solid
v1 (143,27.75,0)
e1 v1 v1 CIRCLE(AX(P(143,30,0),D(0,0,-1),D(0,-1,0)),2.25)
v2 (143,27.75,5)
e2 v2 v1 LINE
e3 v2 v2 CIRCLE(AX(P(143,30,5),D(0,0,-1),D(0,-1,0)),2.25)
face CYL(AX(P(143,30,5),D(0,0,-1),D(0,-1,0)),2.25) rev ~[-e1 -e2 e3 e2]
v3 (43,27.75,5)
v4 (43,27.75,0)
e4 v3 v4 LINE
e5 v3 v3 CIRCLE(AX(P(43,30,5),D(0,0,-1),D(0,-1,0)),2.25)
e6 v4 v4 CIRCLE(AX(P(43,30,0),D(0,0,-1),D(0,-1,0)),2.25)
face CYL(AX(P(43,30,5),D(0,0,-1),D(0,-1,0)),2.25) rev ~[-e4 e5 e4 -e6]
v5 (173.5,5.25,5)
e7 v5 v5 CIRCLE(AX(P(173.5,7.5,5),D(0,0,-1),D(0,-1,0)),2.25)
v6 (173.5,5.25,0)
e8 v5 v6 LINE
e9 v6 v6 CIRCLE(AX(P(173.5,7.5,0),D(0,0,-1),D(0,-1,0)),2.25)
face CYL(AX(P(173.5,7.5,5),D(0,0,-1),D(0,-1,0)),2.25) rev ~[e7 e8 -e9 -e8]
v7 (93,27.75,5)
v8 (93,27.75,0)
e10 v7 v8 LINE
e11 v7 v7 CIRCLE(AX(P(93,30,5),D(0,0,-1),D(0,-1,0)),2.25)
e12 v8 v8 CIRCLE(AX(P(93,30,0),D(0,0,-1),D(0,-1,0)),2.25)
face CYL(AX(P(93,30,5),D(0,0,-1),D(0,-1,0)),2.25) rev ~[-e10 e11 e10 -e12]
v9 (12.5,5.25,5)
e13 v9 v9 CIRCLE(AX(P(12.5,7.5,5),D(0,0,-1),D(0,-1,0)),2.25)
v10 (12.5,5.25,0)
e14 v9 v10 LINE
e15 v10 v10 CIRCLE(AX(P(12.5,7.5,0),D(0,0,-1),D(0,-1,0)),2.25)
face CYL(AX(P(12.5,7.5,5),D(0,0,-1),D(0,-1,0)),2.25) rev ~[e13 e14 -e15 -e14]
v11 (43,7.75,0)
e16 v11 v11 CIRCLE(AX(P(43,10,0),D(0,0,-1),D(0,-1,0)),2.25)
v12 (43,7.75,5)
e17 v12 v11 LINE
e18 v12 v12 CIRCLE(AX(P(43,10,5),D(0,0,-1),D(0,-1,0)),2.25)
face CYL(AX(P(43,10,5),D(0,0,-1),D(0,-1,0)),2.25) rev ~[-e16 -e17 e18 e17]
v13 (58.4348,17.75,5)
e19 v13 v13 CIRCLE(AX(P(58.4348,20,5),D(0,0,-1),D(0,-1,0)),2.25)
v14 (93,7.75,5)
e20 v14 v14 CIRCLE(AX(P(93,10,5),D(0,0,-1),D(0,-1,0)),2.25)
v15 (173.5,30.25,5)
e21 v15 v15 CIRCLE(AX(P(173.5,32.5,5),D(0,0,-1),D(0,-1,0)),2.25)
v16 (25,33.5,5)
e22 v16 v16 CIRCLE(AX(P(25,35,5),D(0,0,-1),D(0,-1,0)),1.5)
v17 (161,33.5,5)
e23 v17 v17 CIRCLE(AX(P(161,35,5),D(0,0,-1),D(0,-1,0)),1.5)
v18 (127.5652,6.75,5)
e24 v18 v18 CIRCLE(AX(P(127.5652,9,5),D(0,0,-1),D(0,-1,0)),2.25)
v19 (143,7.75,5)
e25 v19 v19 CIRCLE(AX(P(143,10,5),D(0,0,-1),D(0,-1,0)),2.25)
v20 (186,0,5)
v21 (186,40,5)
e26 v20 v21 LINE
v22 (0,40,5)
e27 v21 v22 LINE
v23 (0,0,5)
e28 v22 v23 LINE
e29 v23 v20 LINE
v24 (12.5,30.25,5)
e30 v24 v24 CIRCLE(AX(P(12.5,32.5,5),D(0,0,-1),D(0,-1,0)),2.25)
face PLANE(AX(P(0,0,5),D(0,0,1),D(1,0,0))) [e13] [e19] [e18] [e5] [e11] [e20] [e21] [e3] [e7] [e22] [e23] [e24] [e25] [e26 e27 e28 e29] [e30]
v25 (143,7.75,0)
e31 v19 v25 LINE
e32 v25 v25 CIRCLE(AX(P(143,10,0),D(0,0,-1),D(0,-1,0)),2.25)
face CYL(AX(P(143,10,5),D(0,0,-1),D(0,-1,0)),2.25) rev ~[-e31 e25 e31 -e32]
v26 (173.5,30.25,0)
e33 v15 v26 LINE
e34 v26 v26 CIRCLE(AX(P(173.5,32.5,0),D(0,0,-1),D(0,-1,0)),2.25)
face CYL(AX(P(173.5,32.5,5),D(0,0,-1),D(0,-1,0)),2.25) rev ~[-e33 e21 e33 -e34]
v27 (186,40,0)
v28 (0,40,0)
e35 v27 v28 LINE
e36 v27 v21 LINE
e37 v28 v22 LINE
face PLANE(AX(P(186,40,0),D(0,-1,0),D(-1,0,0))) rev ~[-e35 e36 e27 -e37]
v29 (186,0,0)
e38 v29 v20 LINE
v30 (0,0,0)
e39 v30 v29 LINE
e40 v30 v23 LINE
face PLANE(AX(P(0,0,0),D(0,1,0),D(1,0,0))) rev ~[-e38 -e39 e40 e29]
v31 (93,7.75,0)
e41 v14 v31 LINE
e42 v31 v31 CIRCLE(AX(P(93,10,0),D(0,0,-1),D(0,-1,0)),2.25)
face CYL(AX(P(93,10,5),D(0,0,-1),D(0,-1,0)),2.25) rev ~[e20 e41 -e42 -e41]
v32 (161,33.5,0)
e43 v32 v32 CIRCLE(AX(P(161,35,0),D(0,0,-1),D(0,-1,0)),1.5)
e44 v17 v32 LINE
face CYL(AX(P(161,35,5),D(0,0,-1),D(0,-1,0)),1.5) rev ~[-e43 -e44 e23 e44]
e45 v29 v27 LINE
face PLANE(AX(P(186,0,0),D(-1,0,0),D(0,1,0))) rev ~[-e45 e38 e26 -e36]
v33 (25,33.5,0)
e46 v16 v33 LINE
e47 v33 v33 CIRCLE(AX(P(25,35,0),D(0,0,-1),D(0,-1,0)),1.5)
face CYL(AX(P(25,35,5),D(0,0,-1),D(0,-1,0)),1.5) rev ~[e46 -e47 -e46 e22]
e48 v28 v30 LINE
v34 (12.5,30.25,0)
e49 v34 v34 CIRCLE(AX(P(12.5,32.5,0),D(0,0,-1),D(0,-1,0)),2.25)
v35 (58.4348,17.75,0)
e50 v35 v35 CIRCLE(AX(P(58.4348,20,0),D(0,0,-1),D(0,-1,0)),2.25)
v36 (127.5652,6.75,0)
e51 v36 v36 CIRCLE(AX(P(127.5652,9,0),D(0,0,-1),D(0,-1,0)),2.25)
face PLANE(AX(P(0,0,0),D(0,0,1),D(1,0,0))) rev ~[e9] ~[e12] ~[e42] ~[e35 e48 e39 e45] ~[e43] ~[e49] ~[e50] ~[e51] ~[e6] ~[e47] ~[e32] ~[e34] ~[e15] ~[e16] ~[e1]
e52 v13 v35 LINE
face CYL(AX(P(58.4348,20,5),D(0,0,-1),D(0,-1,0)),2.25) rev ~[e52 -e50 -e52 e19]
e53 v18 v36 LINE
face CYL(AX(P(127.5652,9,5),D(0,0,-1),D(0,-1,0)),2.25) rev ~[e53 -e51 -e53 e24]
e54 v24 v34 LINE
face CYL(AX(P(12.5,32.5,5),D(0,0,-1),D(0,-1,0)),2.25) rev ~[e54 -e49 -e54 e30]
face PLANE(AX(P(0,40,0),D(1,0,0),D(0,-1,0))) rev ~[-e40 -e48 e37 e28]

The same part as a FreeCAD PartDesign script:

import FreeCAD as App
import Part
import Sketcher
from FreeCAD import Vector


def add_polygon(sketch, points):
    """Adds a closed chain of lines whose ends are joined by coincident constraints."""
    first, n = sketch.GeometryCount, len(points)
    for a, b in zip(points, points[1:] + points[:1]):
        sketch.addGeometry(Part.LineSegment(App.Vector(*a, 0), App.Vector(*b, 0)), False)
    for i in range(n):
        sketch.addConstraint(Sketcher.Constraint("Coincident", first + i, 2, first + (i + 1) % n, 1))

doc = App.newDocument("Part")
body = doc.addObject("PartDesign::Body", "Body")

# Sketch on XY plane
sketch1 = body.newObject("Sketcher::SketchObject", "Sketch")
sketch1.AttachmentSupport = (doc.getObject("XY_Plane"), [""])
sketch1.MapMode = "FlatFace"
add_polygon(sketch1, [(0, 40), (0, 0), (186, 0), (186, 40)])  # lines 0-3
sketch1.addConstraint([
    Sketcher.Constraint("Vertical", 0),
    Sketcher.Constraint("Horizontal", 1),
    Sketcher.Constraint("Vertical", 2),
    Sketcher.Constraint("Horizontal", 3),
    Sketcher.Constraint("Coincident", 0, 2, -1, 1),
    Sketcher.Constraint("DistanceX", 1, 1, 1, 2, 186.0),
    Sketcher.Constraint("DistanceY", 0, 2, 0, 1, 40.0),
])
pad1 = body.newObject("PartDesign::Pad", "Pad")
pad1.Profile = sketch1
pad1.Length = 5

# Sketch on XY plane
sketch2 = body.newObject("Sketcher::SketchObject", "Sketch001")
sketch2.AttachmentSupport = (doc.getObject("XY_Plane"), [""])
sketch2.MapMode = "FlatFace"
sketch2.AttachmentOffset = App.Placement(Vector(0, 0, 5), App.Rotation())
sketch2.addGeometry([
    Part.Circle(Vector(43, 30, 0), Vector(0, 0, 1), 2.2),
    Part.Circle(Vector(43, 10, 0), Vector(0, 0, 1), 2.2),
], False)
sketch2.addConstraint([
    Sketcher.Constraint("Equal", 0, 1),
    Sketcher.Constraint("Vertical", 0, 3, 1, 3),
    Sketcher.Constraint("Diameter", 0, 4.5),
    Sketcher.Constraint("DistanceX", -1, 1, 0, 3, 43.0),
    Sketcher.Constraint("DistanceY", -1, 1, 0, 3, 30.0),
    Sketcher.Constraint("DistanceY", -1, 1, 1, 3, 10.0),
])
doc.recompute()
hole = body.newObject("PartDesign::Hole", "Hole")
hole.Profile = sketch2
hole.ThreadType = "None"
hole.Diameter = 4.5
hole.DepthType = "ThroughAll"
doc.recompute()

linearpattern = body.newObject("PartDesign::LinearPattern", "LinearPattern")
linearpattern.Originals = [hole]
linearpattern.Direction = (doc.getObject("X_Axis"), [""])
linearpattern.Mode = "offset"
linearpattern.Offset = 50
linearpattern.Occurrences = 3
body.Tip = linearpattern

# Sketch on XY plane
sketch3 = body.newObject("Sketcher::SketchObject", "Sketch002")
sketch3.AttachmentSupport = (doc.getObject("XY_Plane"), [""])
sketch3.MapMode = "FlatFace"
sketch3.AttachmentOffset = App.Placement(Vector(0, 0, 5), App.Rotation())
sketch3.addGeometry([
    Part.Circle(Vector(58.4, 20, 0), Vector(0, 0, 1), 2.2),
    Part.Circle(Vector(127.6, 9, 0), Vector(0, 0, 1), 2.2),
], False)
sketch3.addConstraint([
    Sketcher.Constraint("Equal", 0, 1),
    Sketcher.Constraint("Diameter", 0, 4.5),
    Sketcher.Constraint("DistanceY", -1, 1, 0, 3, 20.0),
    Sketcher.Constraint("DistanceY", -1, 1, 1, 3, 9.0),
    Sketcher.Constraint("DistanceX", -1, 1, 0, 3, 58.4348),
    Sketcher.Constraint("DistanceX", -1, 1, 1, 3, 127.5652),
])
doc.recompute()
hole2 = body.newObject("PartDesign::Hole", "Hole001")
hole2.Profile = sketch3
hole2.ThreadType = "None"
hole2.Diameter = 4.5
hole2.DepthType = "ThroughAll"

# Sketch on XY plane
sketch4 = body.newObject("Sketcher::SketchObject", "Sketch003")
sketch4.AttachmentSupport = (doc.getObject("XY_Plane"), [""])
sketch4.MapMode = "FlatFace"
sketch4.AttachmentOffset = App.Placement(Vector(0, 0, 5), App.Rotation())
sketch4.addGeometry([
    Part.Circle(Vector(12.5, 32.5, 0), Vector(0, 0, 1), 2.2),
    Part.Circle(Vector(12.5, 7.5, 0), Vector(0, 0, 1), 2.2),
    Part.Circle(Vector(173.5, 32.5, 0), Vector(0, 0, 1), 2.2),
    Part.Circle(Vector(173.5, 7.5, 0), Vector(0, 0, 1), 2.2),
], False)
sketch4.addConstraint([
    Sketcher.Constraint("Equal", 0, 1),
    Sketcher.Constraint("Equal", 1, 2),
    Sketcher.Constraint("Equal", 2, 3),
    Sketcher.Constraint("Horizontal", 0, 3, 2, 3),
    Sketcher.Constraint("Horizontal", 1, 3, 3, 3),
    Sketcher.Constraint("Vertical", 0, 3, 1, 3),
    Sketcher.Constraint("Vertical", 2, 3, 3, 3),
    Sketcher.Constraint("Diameter", 0, 4.5),
    Sketcher.Constraint("DistanceY", 1, 3, 0, 3, 25.0),
    Sketcher.Constraint("DistanceX", 0, 3, 2, 3, 161.0),
    Sketcher.Constraint("DistanceX", -1, 1, 0, 3, 12.5),
    Sketcher.Constraint("DistanceY", -1, 1, 0, 3, 32.5),
])
doc.recompute()
hole3 = body.newObject("PartDesign::Hole", "Hole002")
hole3.Profile = sketch4
hole3.ThreadType = "None"
hole3.Diameter = 4.5
hole3.DepthType = "ThroughAll"

# Sketch on XY plane
sketch5 = body.newObject("Sketcher::SketchObject", "Sketch004")
sketch5.AttachmentSupport = (doc.getObject("XY_Plane"), [""])
sketch5.MapMode = "FlatFace"
sketch5.AttachmentOffset = App.Placement(Vector(0, 0, 5), App.Rotation())
sketch5.addGeometry([
    Part.Circle(Vector(25, 35, 0), Vector(0, 0, 1), 1.5),
    Part.Circle(Vector(161, 35, 0), Vector(0, 0, 1), 1.5),
], False)
sketch5.addConstraint([
    Sketcher.Constraint("Equal", 0, 1),
    Sketcher.Constraint("Horizontal", 0, 3, 1, 3),
    Sketcher.Constraint("Diameter", 0, 3.0),
    Sketcher.Constraint("DistanceX", -1, 1, 0, 3, 25.0),
    Sketcher.Constraint("DistanceY", -1, 1, 0, 3, 35.0),
    Sketcher.Constraint("DistanceX", -1, 1, 1, 3, 161.0),
])
doc.recompute()
hole4 = body.newObject("PartDesign::Hole", "Hole003")
hole4.Profile = sketch5
hole4.ThreadType = "None"
hole4.Diameter = 3
hole4.DepthType = "ThroughAll"

doc.recompute()
